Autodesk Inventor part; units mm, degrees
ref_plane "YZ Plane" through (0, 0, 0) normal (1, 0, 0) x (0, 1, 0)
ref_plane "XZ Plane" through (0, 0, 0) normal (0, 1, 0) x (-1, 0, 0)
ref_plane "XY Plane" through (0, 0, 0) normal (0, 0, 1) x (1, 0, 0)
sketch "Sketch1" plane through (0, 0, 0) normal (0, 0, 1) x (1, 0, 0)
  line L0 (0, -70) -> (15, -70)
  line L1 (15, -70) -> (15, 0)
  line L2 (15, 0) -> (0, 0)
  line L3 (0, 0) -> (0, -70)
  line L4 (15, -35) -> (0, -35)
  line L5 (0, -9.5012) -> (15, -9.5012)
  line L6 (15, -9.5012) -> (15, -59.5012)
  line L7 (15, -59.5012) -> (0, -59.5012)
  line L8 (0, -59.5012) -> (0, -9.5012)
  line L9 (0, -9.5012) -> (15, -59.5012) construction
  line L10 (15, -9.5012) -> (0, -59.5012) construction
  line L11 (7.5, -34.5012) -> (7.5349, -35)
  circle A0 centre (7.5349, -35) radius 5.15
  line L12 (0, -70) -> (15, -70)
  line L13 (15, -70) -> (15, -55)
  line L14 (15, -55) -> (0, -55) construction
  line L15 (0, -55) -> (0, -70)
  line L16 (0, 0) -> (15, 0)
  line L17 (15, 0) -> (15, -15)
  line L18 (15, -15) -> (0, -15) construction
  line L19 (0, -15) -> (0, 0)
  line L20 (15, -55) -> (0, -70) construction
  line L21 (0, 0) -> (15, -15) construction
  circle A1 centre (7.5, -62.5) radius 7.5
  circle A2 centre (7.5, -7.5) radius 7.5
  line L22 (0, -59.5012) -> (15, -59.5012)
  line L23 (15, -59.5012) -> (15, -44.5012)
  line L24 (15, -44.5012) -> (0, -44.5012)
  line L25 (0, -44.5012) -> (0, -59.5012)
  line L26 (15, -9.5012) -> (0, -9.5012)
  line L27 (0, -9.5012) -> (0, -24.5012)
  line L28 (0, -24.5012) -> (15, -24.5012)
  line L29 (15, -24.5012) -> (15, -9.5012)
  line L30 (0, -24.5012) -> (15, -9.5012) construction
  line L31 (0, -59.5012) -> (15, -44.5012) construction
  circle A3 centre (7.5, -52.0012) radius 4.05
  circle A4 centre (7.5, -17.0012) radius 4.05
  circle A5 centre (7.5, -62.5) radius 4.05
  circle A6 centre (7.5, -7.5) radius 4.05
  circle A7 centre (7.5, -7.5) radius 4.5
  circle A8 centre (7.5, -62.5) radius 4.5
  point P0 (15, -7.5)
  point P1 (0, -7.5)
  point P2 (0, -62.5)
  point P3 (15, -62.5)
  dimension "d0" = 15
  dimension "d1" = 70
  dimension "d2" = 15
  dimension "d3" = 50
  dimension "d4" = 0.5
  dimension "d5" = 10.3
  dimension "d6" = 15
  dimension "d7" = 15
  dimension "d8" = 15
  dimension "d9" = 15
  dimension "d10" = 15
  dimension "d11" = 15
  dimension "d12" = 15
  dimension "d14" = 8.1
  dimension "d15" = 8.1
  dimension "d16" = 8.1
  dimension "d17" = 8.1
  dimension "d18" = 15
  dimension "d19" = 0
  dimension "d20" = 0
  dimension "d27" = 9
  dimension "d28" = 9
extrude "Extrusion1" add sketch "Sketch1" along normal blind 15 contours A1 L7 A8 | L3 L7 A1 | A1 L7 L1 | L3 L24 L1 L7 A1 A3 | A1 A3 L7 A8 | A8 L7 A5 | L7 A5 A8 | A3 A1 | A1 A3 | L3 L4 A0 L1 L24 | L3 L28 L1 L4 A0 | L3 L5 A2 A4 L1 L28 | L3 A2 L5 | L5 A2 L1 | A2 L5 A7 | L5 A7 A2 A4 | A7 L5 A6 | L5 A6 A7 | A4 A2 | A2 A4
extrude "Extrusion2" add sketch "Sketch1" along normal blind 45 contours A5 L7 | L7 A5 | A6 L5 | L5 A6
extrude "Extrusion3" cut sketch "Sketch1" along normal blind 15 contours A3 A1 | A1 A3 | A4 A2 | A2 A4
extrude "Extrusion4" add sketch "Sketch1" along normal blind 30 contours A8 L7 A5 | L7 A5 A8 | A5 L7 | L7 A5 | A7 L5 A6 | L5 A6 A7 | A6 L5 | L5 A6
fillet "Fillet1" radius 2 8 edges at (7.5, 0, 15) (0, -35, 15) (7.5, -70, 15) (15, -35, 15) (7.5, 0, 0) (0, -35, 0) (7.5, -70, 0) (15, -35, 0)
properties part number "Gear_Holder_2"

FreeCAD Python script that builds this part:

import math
import FreeCAD as App
import Part
import Sketcher
from FreeCAD import Vector
Q = App.Units.Quantity


def edges_at(feature, points):
    """Names of the edges that pass closest to the given points."""
    edges = feature.Shape.Edges
    near = lambda p: min(range(len(edges)), key=lambda i: edges[i].distToShape(Part.Vertex(*p))[0])
    return sorted({f"Edge{near(p) + 1}" for p in points})

doc = App.newDocument("Part")
body = doc.addObject("PartDesign::Body", "Body")

# Sketch on XY plane
sketch1 = body.newObject("Sketcher::SketchObject", "Sketch")
sketch1.AttachmentSupport = (doc.getObject("XY_Plane"), [""])
sketch1.MapMode = "FlatFace"
sketch1.addGeometry([
    Part.ArcOfCircle(Part.Circle(Vector(7.5, -62.5, 0), Vector(0, 0, 1), 7.5), math.radians(180), math.radians(360)),  # 0
    Part.LineSegment(Vector(15, -62.5, 0), Vector(15, -7.5, 0)),  # 1
    Part.ArcOfCircle(Part.Circle(Vector(7.5, -7.5, 0), Vector(0, 0, 1), 7.5), math.radians(0), math.radians(180)),  # 2
    Part.LineSegment(Vector(0, -7.5, 0), Vector(0, -62.5, 0)),  # 3
    Part.Circle(Vector(7.5, -62.5, 0), Vector(0, 0, 1), 4),  # 4
    Part.Circle(Vector(7.5, -35, 0), Vector(0, 0, 1), 5.2),  # 5
    Part.Circle(Vector(7.5, -7.5, 0), Vector(0, 0, 1), 4),  # 6
], False)
sketch1.addConstraint([
    Sketcher.Constraint("Tangent", 0, 2, 1, 1),
    Sketcher.Constraint("Tangent", 1, 2, 2, 1),
    Sketcher.Constraint("Tangent", 2, 2, 3, 1),
    Sketcher.Constraint("Tangent", 3, 2, 0, 1),
    Sketcher.Constraint("Vertical", 1),
    Sketcher.Constraint("Vertical", 3),
    Sketcher.Constraint("Coincident", 4, 3, 0, 3),
    Sketcher.Constraint("Coincident", 6, 3, 2, 3),
    Sketcher.Constraint("Equal", 4, 6),
    Sketcher.Constraint("PointOnObject", 2, 2, -2),
    Sketcher.Constraint("Diameter", 4, Q("8.1 mm")),
    Sketcher.Constraint("Diameter", 5, Q("10.3 mm")),
    Sketcher.Constraint("Radius", 0, Q("7.5 mm")),
    Sketcher.Constraint("DistanceY", 1, 1, 1, 2, Q("55 mm")),
    Sketcher.Constraint("DistanceY", 5, 3, -1, 1, Q("35 mm")),
    Sketcher.Constraint("DistanceY", 0, 3, -1, 1, Q("62.5 mm")),
    Sketcher.Constraint("DistanceX", -1, 1, 5, 3, Q("7.535 mm")),
])
pad1 = body.newObject("PartDesign::Pad", "Pad")
pad1.Profile = sketch1
pad1.Length = 15

# Sketch on XY plane
sketch2 = body.newObject("Sketcher::SketchObject", "Sketch001")
sketch2.AttachmentSupport = (doc.getObject("XY_Plane"), [""])
sketch2.MapMode = "FlatFace"
sketch2.addGeometry([
    Part.Circle(Vector(7.5, -62.5, 0), Vector(0, 0, 1), 4),
    Part.Circle(Vector(7.5, -7.5, 0), Vector(0, 0, 1), 4),
], False)
sketch2.addConstraint([
    Sketcher.Constraint("Equal", 0, 1),
    Sketcher.Constraint("Vertical", 0, 3, 1, 3),
    Sketcher.Constraint("Diameter", 0, Q("8.1 mm")),
    Sketcher.Constraint("DistanceY", 0, 3, 1, 3, Q("55 mm")),
    Sketcher.Constraint("DistanceX", -1, 1, 0, 3, Q("7.5 mm")),
    Sketcher.Constraint("DistanceY", 0, 3, -1, 1, Q("62.5 mm")),
])
pad2 = body.newObject("PartDesign::Pad", "Pad001")
pad2.Profile = sketch2
pad2.Length = 45

# Sketch on XY plane
sketch3 = body.newObject("Sketcher::SketchObject", "Sketch002")
sketch3.AttachmentSupport = (doc.getObject("XY_Plane"), [""])
sketch3.MapMode = "FlatFace"
sketch3.addGeometry([
    Part.Circle(Vector(7.5, -52, 0), Vector(0, 0, 1), 4),
    Part.Circle(Vector(7.5, -17, 0), Vector(0, 0, 1), 4),
], False)
sketch3.addConstraint([
    Sketcher.Constraint("Equal", 0, 1),
    Sketcher.Constraint("Vertical", 0, 3, 1, 3),
    Sketcher.Constraint("Diameter", 0, Q("8.1 mm")),
    Sketcher.Constraint("DistanceY", 0, 3, 1, 3, Q("35 mm")),
    Sketcher.Constraint("DistanceX", -1, 1, 0, 3, Q("7.5 mm")),
    Sketcher.Constraint("DistanceY", 0, 3, -1, 1, Q("52.0012 mm")),
])
pocket1 = body.newObject("PartDesign::Pocket", "Pocket")
pocket1.Profile = sketch3
pocket1.Length = 15
pocket1.Reversed = True

# Sketch on XY plane
sketch4 = body.newObject("Sketcher::SketchObject", "Sketch003")
sketch4.AttachmentSupport = (doc.getObject("XY_Plane"), [""])
sketch4.MapMode = "FlatFace"
sketch4.addGeometry([
    Part.Circle(Vector(7.5, -62.5, 0), Vector(0, 0, 1), 4.5),
    Part.Circle(Vector(7.5, -7.5, 0), Vector(0, 0, 1), 4.5),
], False)
sketch4.addConstraint([
    Sketcher.Constraint("Equal", 0, 1),
    Sketcher.Constraint("Vertical", 0, 3, 1, 3),
    Sketcher.Constraint("Diameter", 0, Q("9 mm")),
    Sketcher.Constraint("DistanceY", 0, 3, 1, 3, Q("55 mm")),
    Sketcher.Constraint("DistanceX", -1, 1, 0, 3, Q("7.5 mm")),
    Sketcher.Constraint("DistanceY", 0, 3, -1, 1, Q("62.5 mm")),
])
pad3 = body.newObject("PartDesign::Pad", "Pad002")
pad3.Profile = sketch4
pad3.Length = 30
doc.recompute()

fillet = body.newObject("PartDesign::Fillet", "Fillet")
fillet.Base = (pad3, edges_at(pad3, [
    (7.5, 0, 15),
    (0, -35, 15),
    (7.5, -70, 15),
    (15, -35, 15),
    (7.5, 0, 0),
    (0, -35, 0),
    (7.5, -70, 0),
    (15, -35, 0),
]))
fillet.Radius = 2

doc.recompute()
